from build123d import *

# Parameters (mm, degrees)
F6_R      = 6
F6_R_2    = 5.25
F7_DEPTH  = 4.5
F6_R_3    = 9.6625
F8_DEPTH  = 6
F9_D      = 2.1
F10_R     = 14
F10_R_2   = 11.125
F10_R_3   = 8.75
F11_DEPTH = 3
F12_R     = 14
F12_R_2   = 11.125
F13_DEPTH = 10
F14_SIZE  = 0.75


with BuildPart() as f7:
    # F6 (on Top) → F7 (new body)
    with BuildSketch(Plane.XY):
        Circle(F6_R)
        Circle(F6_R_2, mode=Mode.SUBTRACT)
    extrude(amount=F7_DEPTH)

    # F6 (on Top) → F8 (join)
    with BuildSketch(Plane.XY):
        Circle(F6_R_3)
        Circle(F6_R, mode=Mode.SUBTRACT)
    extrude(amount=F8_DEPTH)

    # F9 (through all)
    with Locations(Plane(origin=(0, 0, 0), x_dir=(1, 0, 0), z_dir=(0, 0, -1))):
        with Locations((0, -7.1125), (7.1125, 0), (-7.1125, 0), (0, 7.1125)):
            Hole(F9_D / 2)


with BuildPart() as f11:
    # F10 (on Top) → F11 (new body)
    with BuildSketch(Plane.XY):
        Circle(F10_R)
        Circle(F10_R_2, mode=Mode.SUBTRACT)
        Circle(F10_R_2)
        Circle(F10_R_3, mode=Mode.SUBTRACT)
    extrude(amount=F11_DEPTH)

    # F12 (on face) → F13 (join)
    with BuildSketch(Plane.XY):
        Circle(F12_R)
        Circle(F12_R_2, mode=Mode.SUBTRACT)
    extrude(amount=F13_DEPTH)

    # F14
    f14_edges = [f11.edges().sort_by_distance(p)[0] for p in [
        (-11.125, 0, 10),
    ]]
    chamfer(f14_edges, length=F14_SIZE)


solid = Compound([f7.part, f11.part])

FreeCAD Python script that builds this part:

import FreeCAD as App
import Part
import Sketcher
from FreeCAD import Vector
Q = App.Units.Quantity


def edges_at(feature, points):
    """Names of the edges that pass closest to the given points."""
    edges = feature.Shape.Edges
    near = lambda p: min(range(len(edges)), key=lambda i: edges[i].distToShape(Part.Vertex(*p))[0])
    return sorted({f"Edge{near(p) + 1}" for p in points})

doc = App.newDocument("Part")
body = doc.addObject("PartDesign::Body", "Body")

sketch1 = doc.addObject("Sketcher::SketchObject", "Sketch")
body.addObject(sketch1)
sketch1.AttachmentSupport = (doc.XY_Plane, [""])
sketch1.MapMode = "FlatFace"
sketch1.addGeometry([
    Part.Circle(Vector(0, 0, 0), Vector(0, 0, 1), 6),
    Part.Circle(Vector(0, 0, 0), Vector(0, 0, 1), 5.25),
], False)
sketch1.addConstraint([
    Sketcher.Constraint("Coincident", 0, 3, -1, 1),
    Sketcher.Constraint("Coincident", 1, 3, -1, 1),
    Sketcher.Constraint("Diameter", 0, Q("12 mm")),
    Sketcher.Constraint("Diameter", 1, Q("10.5 mm")),
])
pad1 = doc.addObject("PartDesign::Pad", "Pad")
body.addObject(pad1)
pad1.Profile = sketch1
pad1.Length = 4.5

sketch2 = doc.addObject("Sketcher::SketchObject", "Sketch001")
body.addObject(sketch2)
sketch2.AttachmentSupport = (doc.XY_Plane, [""])
sketch2.MapMode = "FlatFace"
sketch2.addGeometry([
    Part.Circle(Vector(0, 0, 0), Vector(0, 0, 1), 9.6625),
    Part.Circle(Vector(0, 0, 0), Vector(0, 0, 1), 6),
], False)
sketch2.addConstraint([
    Sketcher.Constraint("Coincident", 0, 3, -1, 1),
    Sketcher.Constraint("Coincident", 1, 3, -1, 1),
    Sketcher.Constraint("Diameter", 1, Q("12 mm")),
    Sketcher.Constraint("Diameter", 0, Q("19.325 mm")),
])
pad2 = doc.addObject("PartDesign::Pad", "Pad001")
body.addObject(pad2)
pad2.Profile = sketch2
pad2.Length = 6

sketch3 = doc.addObject("Sketcher::SketchObject", "Sketch002")
body.addObject(sketch3)
sketch3.AttachmentSupport = (doc.XY_Plane, [""])
sketch3.MapMode = "FlatFace"
sketch3.addGeometry([
    Part.Circle(Vector(0, 7.1125, 0), Vector(0, 0, 1), 1.05),
    Part.Circle(Vector(7.1125, 0, 0), Vector(0, 0, 1), 1.05),
    Part.Circle(Vector(-7.1125, 0, 0), Vector(0, 0, 1), 1.05),
    Part.Circle(Vector(0, -7.1125, 0), Vector(0, 0, 1), 1.05),
], False)
sketch3.addConstraint([
    Sketcher.Constraint("Equal", 0, 1),
    Sketcher.Constraint("Equal", 1, 2),
    Sketcher.Constraint("Equal", 2, 3),
    Sketcher.Constraint("Symmetric", 1, 3, 2, 3, -1, 1),
    Sketcher.Constraint("Symmetric", 0, 3, 3, 3, -1, 1),
    Sketcher.Constraint("PointOnObject", 0, 3, -2),
    Sketcher.Constraint("PointOnObject", 1, 3, -1),
    Sketcher.Constraint("Diameter", 0, Q("2.1 mm")),
    Sketcher.Constraint("DistanceX", 2, 3, 1, 3, Q("14.225 mm")),
    Sketcher.Constraint("DistanceY", 3, 3, 0, 3, Q("14.225 mm")),
])
doc.recompute()
hole = doc.addObject("PartDesign::Hole", "Hole")
body.addObject(hole)
hole.Profile = sketch3
hole.ThreadType = "None"
hole.Diameter = 2.1
hole.DepthType = "ThroughAll"
hole.Reversed = True
body2 = doc.addObject("PartDesign::Body", "Body001")

sketch4 = doc.addObject("Sketcher::SketchObject", "Sketch003")
body2.addObject(sketch4)
sketch4.AttachmentSupport = (doc.getObject("XY_Plane001"), [""])
sketch4.MapMode = "FlatFace"
sketch4.addGeometry([
    Part.Circle(Vector(0, 0, 0), Vector(0, 0, 1), 14),
    Part.Circle(Vector(0, 0, 0), Vector(0, 0, 1), 8.75),
], False)
sketch4.addConstraint([
    Sketcher.Constraint("Coincident", 0, 3, -1, 1),
    Sketcher.Constraint("Coincident", 1, 3, -1, 1),
    Sketcher.Constraint("Diameter", 0, Q("28 mm")),
    Sketcher.Constraint("Diameter", 1, Q("17.5 mm")),
])
pad3 = doc.addObject("PartDesign::Pad", "Pad002")
body2.addObject(pad3)
pad3.Profile = sketch4
pad3.Length = 3

sketch5 = doc.addObject("Sketcher::SketchObject", "Sketch004")
body2.addObject(sketch5)
sketch5.AttachmentSupport = (doc.getObject("XY_Plane001"), [""])
sketch5.MapMode = "FlatFace"
sketch5.addGeometry([
    Part.Circle(Vector(0, 0, 0), Vector(0, 0, 1), 14),
    Part.Circle(Vector(0, 0, 0), Vector(0, 0, 1), 11.125),
], False)
sketch5.addConstraint([
    Sketcher.Constraint("Coincident", 0, 3, -1, 1),
    Sketcher.Constraint("Coincident", 1, 3, -1, 1),
    Sketcher.Constraint("Diameter", 0, Q("28 mm")),
    Sketcher.Constraint("Diameter", 1, Q("22.25 mm")),
])
pad4 = doc.addObject("PartDesign::Pad", "Pad003")
body2.addObject(pad4)
pad4.Profile = sketch5
pad4.Length = 10
doc.recompute()

chamfer = doc.addObject("PartDesign::Chamfer", "Chamfer")
body2.addObject(chamfer)
chamfer.Base = (pad4, edges_at(pad4, [(-11.125, 0, 10)]))
chamfer.Size = 0.75

doc.recompute()
